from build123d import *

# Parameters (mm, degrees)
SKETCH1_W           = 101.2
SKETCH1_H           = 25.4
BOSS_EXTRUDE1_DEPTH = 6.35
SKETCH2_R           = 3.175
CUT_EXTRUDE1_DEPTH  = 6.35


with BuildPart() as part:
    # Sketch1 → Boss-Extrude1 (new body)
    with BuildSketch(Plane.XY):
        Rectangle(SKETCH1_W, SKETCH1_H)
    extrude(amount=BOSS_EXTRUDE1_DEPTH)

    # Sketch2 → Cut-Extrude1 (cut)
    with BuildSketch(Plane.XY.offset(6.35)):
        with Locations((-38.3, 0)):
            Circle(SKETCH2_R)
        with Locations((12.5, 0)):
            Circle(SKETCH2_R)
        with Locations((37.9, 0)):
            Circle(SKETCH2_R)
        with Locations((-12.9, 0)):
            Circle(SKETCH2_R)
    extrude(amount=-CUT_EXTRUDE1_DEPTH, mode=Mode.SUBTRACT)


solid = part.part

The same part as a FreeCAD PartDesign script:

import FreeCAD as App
import Part
import Sketcher

V = App.Vector
Q = App.Units.Quantity

doc = App.newDocument("Part")
body = doc.addObject("PartDesign::Body", "Body")

sketch1 = body.newObject("Sketcher::SketchObject", "Sketch")
sketch1.AttachmentSupport = (doc.getObject("XY_Plane"), [""])
sketch1.MapMode = "FlatFace"
sketch1.addGeometry(Part.LineSegment(V(-51, 13, 0), V(-51, -13, 0)), False)
sketch1.addGeometry(Part.LineSegment(V(-51, -13, 0), V(51, -13, 0)), False)
sketch1.addGeometry(Part.LineSegment(V(51, -13, 0), V(51, 13, 0)), False)
sketch1.addGeometry(Part.LineSegment(V(51, 13, 0), V(-51, 13, 0)), False)
sketch1.addConstraint(Sketcher.Constraint("Coincident", 0, 2, 1, 1))
sketch1.addConstraint(Sketcher.Constraint("Coincident", 1, 2, 2, 1))
sketch1.addConstraint(Sketcher.Constraint("Coincident", 2, 2, 3, 1))
sketch1.addConstraint(Sketcher.Constraint("Coincident", 3, 2, 0, 1))
sketch1.addConstraint(Sketcher.Constraint("Vertical", 0))
sketch1.addConstraint(Sketcher.Constraint("Horizontal", 1))
sketch1.addConstraint(Sketcher.Constraint("Vertical", 2))
sketch1.addConstraint(Sketcher.Constraint("Horizontal", 3))
sketch1.addConstraint(Sketcher.Constraint("Symmetric", 0, 2, 2, 2, -1, 1))
sketch1.addConstraint(Sketcher.Constraint("DistanceY", 0, 2, 0, 1, Q("1 in")))
sketch1.addConstraint(Sketcher.Constraint("DistanceX", 1, 1, 1, 2, 101.2))
pad1 = body.newObject("PartDesign::Pad", "Pad")
pad1.Profile = sketch1
pad1.Length = Q("0.25 in")

sketch2 = body.newObject("Sketcher::SketchObject", "Sketch001")
sketch2.AttachmentSupport = (doc.getObject("XY_Plane"), [""])
sketch2.MapMode = "FlatFace"
sketch2.AttachmentOffset = App.Placement(V(0, 0, 0.25 * 25.4), App.Rotation())
sketch2.addGeometry(Part.Circle(V(-38.3, 0, 0), V(0, 0, 1), 3.2), False)
sketch2.addGeometry(Part.Circle(V(12.5, 0, 0), V(0, 0, 1), 3.2), False)
sketch2.addGeometry(Part.Circle(V(37.9, 0, 0), V(0, 0, 1), 3.2), False)
sketch2.addGeometry(Part.Circle(V(-12.9, 0, 0), V(0, 0, 1), 3.2), False)
sketch2.addConstraint(Sketcher.Constraint("Equal", 0, 1))
sketch2.addConstraint(Sketcher.Constraint("Equal", 1, 2))
sketch2.addConstraint(Sketcher.Constraint("Equal", 2, 3))
sketch2.addConstraint(Sketcher.Constraint("PointOnObject", 0, 3, -1))
sketch2.addConstraint(Sketcher.Constraint("PointOnObject", 1, 3, -1))
sketch2.addConstraint(Sketcher.Constraint("PointOnObject", 2, 3, -1))
sketch2.addConstraint(Sketcher.Constraint("PointOnObject", 3, 3, -1))
sketch2.addConstraint(Sketcher.Constraint("Diameter", 0, Q("0.25 in")))
sketch2.addConstraint(Sketcher.Constraint("DistanceX", 0, 3, 1, 3, Q("2 in")))
sketch2.addConstraint(Sketcher.Constraint("DistanceX", 1, 3, 2, 3, Q("1 in")))
sketch2.addConstraint(Sketcher.Constraint("DistanceX", 0, 3, 3, 3, Q("1 in")))
sketch2.addConstraint(Sketcher.Constraint("DistanceX", 0, 3, -1, 1, 38.3))
pocket1 = body.newObject("PartDesign::Pocket", "Pocket")
pocket1.Profile = sketch2
pocket1.Length = Q("0.25 in")

doc.recompute()
